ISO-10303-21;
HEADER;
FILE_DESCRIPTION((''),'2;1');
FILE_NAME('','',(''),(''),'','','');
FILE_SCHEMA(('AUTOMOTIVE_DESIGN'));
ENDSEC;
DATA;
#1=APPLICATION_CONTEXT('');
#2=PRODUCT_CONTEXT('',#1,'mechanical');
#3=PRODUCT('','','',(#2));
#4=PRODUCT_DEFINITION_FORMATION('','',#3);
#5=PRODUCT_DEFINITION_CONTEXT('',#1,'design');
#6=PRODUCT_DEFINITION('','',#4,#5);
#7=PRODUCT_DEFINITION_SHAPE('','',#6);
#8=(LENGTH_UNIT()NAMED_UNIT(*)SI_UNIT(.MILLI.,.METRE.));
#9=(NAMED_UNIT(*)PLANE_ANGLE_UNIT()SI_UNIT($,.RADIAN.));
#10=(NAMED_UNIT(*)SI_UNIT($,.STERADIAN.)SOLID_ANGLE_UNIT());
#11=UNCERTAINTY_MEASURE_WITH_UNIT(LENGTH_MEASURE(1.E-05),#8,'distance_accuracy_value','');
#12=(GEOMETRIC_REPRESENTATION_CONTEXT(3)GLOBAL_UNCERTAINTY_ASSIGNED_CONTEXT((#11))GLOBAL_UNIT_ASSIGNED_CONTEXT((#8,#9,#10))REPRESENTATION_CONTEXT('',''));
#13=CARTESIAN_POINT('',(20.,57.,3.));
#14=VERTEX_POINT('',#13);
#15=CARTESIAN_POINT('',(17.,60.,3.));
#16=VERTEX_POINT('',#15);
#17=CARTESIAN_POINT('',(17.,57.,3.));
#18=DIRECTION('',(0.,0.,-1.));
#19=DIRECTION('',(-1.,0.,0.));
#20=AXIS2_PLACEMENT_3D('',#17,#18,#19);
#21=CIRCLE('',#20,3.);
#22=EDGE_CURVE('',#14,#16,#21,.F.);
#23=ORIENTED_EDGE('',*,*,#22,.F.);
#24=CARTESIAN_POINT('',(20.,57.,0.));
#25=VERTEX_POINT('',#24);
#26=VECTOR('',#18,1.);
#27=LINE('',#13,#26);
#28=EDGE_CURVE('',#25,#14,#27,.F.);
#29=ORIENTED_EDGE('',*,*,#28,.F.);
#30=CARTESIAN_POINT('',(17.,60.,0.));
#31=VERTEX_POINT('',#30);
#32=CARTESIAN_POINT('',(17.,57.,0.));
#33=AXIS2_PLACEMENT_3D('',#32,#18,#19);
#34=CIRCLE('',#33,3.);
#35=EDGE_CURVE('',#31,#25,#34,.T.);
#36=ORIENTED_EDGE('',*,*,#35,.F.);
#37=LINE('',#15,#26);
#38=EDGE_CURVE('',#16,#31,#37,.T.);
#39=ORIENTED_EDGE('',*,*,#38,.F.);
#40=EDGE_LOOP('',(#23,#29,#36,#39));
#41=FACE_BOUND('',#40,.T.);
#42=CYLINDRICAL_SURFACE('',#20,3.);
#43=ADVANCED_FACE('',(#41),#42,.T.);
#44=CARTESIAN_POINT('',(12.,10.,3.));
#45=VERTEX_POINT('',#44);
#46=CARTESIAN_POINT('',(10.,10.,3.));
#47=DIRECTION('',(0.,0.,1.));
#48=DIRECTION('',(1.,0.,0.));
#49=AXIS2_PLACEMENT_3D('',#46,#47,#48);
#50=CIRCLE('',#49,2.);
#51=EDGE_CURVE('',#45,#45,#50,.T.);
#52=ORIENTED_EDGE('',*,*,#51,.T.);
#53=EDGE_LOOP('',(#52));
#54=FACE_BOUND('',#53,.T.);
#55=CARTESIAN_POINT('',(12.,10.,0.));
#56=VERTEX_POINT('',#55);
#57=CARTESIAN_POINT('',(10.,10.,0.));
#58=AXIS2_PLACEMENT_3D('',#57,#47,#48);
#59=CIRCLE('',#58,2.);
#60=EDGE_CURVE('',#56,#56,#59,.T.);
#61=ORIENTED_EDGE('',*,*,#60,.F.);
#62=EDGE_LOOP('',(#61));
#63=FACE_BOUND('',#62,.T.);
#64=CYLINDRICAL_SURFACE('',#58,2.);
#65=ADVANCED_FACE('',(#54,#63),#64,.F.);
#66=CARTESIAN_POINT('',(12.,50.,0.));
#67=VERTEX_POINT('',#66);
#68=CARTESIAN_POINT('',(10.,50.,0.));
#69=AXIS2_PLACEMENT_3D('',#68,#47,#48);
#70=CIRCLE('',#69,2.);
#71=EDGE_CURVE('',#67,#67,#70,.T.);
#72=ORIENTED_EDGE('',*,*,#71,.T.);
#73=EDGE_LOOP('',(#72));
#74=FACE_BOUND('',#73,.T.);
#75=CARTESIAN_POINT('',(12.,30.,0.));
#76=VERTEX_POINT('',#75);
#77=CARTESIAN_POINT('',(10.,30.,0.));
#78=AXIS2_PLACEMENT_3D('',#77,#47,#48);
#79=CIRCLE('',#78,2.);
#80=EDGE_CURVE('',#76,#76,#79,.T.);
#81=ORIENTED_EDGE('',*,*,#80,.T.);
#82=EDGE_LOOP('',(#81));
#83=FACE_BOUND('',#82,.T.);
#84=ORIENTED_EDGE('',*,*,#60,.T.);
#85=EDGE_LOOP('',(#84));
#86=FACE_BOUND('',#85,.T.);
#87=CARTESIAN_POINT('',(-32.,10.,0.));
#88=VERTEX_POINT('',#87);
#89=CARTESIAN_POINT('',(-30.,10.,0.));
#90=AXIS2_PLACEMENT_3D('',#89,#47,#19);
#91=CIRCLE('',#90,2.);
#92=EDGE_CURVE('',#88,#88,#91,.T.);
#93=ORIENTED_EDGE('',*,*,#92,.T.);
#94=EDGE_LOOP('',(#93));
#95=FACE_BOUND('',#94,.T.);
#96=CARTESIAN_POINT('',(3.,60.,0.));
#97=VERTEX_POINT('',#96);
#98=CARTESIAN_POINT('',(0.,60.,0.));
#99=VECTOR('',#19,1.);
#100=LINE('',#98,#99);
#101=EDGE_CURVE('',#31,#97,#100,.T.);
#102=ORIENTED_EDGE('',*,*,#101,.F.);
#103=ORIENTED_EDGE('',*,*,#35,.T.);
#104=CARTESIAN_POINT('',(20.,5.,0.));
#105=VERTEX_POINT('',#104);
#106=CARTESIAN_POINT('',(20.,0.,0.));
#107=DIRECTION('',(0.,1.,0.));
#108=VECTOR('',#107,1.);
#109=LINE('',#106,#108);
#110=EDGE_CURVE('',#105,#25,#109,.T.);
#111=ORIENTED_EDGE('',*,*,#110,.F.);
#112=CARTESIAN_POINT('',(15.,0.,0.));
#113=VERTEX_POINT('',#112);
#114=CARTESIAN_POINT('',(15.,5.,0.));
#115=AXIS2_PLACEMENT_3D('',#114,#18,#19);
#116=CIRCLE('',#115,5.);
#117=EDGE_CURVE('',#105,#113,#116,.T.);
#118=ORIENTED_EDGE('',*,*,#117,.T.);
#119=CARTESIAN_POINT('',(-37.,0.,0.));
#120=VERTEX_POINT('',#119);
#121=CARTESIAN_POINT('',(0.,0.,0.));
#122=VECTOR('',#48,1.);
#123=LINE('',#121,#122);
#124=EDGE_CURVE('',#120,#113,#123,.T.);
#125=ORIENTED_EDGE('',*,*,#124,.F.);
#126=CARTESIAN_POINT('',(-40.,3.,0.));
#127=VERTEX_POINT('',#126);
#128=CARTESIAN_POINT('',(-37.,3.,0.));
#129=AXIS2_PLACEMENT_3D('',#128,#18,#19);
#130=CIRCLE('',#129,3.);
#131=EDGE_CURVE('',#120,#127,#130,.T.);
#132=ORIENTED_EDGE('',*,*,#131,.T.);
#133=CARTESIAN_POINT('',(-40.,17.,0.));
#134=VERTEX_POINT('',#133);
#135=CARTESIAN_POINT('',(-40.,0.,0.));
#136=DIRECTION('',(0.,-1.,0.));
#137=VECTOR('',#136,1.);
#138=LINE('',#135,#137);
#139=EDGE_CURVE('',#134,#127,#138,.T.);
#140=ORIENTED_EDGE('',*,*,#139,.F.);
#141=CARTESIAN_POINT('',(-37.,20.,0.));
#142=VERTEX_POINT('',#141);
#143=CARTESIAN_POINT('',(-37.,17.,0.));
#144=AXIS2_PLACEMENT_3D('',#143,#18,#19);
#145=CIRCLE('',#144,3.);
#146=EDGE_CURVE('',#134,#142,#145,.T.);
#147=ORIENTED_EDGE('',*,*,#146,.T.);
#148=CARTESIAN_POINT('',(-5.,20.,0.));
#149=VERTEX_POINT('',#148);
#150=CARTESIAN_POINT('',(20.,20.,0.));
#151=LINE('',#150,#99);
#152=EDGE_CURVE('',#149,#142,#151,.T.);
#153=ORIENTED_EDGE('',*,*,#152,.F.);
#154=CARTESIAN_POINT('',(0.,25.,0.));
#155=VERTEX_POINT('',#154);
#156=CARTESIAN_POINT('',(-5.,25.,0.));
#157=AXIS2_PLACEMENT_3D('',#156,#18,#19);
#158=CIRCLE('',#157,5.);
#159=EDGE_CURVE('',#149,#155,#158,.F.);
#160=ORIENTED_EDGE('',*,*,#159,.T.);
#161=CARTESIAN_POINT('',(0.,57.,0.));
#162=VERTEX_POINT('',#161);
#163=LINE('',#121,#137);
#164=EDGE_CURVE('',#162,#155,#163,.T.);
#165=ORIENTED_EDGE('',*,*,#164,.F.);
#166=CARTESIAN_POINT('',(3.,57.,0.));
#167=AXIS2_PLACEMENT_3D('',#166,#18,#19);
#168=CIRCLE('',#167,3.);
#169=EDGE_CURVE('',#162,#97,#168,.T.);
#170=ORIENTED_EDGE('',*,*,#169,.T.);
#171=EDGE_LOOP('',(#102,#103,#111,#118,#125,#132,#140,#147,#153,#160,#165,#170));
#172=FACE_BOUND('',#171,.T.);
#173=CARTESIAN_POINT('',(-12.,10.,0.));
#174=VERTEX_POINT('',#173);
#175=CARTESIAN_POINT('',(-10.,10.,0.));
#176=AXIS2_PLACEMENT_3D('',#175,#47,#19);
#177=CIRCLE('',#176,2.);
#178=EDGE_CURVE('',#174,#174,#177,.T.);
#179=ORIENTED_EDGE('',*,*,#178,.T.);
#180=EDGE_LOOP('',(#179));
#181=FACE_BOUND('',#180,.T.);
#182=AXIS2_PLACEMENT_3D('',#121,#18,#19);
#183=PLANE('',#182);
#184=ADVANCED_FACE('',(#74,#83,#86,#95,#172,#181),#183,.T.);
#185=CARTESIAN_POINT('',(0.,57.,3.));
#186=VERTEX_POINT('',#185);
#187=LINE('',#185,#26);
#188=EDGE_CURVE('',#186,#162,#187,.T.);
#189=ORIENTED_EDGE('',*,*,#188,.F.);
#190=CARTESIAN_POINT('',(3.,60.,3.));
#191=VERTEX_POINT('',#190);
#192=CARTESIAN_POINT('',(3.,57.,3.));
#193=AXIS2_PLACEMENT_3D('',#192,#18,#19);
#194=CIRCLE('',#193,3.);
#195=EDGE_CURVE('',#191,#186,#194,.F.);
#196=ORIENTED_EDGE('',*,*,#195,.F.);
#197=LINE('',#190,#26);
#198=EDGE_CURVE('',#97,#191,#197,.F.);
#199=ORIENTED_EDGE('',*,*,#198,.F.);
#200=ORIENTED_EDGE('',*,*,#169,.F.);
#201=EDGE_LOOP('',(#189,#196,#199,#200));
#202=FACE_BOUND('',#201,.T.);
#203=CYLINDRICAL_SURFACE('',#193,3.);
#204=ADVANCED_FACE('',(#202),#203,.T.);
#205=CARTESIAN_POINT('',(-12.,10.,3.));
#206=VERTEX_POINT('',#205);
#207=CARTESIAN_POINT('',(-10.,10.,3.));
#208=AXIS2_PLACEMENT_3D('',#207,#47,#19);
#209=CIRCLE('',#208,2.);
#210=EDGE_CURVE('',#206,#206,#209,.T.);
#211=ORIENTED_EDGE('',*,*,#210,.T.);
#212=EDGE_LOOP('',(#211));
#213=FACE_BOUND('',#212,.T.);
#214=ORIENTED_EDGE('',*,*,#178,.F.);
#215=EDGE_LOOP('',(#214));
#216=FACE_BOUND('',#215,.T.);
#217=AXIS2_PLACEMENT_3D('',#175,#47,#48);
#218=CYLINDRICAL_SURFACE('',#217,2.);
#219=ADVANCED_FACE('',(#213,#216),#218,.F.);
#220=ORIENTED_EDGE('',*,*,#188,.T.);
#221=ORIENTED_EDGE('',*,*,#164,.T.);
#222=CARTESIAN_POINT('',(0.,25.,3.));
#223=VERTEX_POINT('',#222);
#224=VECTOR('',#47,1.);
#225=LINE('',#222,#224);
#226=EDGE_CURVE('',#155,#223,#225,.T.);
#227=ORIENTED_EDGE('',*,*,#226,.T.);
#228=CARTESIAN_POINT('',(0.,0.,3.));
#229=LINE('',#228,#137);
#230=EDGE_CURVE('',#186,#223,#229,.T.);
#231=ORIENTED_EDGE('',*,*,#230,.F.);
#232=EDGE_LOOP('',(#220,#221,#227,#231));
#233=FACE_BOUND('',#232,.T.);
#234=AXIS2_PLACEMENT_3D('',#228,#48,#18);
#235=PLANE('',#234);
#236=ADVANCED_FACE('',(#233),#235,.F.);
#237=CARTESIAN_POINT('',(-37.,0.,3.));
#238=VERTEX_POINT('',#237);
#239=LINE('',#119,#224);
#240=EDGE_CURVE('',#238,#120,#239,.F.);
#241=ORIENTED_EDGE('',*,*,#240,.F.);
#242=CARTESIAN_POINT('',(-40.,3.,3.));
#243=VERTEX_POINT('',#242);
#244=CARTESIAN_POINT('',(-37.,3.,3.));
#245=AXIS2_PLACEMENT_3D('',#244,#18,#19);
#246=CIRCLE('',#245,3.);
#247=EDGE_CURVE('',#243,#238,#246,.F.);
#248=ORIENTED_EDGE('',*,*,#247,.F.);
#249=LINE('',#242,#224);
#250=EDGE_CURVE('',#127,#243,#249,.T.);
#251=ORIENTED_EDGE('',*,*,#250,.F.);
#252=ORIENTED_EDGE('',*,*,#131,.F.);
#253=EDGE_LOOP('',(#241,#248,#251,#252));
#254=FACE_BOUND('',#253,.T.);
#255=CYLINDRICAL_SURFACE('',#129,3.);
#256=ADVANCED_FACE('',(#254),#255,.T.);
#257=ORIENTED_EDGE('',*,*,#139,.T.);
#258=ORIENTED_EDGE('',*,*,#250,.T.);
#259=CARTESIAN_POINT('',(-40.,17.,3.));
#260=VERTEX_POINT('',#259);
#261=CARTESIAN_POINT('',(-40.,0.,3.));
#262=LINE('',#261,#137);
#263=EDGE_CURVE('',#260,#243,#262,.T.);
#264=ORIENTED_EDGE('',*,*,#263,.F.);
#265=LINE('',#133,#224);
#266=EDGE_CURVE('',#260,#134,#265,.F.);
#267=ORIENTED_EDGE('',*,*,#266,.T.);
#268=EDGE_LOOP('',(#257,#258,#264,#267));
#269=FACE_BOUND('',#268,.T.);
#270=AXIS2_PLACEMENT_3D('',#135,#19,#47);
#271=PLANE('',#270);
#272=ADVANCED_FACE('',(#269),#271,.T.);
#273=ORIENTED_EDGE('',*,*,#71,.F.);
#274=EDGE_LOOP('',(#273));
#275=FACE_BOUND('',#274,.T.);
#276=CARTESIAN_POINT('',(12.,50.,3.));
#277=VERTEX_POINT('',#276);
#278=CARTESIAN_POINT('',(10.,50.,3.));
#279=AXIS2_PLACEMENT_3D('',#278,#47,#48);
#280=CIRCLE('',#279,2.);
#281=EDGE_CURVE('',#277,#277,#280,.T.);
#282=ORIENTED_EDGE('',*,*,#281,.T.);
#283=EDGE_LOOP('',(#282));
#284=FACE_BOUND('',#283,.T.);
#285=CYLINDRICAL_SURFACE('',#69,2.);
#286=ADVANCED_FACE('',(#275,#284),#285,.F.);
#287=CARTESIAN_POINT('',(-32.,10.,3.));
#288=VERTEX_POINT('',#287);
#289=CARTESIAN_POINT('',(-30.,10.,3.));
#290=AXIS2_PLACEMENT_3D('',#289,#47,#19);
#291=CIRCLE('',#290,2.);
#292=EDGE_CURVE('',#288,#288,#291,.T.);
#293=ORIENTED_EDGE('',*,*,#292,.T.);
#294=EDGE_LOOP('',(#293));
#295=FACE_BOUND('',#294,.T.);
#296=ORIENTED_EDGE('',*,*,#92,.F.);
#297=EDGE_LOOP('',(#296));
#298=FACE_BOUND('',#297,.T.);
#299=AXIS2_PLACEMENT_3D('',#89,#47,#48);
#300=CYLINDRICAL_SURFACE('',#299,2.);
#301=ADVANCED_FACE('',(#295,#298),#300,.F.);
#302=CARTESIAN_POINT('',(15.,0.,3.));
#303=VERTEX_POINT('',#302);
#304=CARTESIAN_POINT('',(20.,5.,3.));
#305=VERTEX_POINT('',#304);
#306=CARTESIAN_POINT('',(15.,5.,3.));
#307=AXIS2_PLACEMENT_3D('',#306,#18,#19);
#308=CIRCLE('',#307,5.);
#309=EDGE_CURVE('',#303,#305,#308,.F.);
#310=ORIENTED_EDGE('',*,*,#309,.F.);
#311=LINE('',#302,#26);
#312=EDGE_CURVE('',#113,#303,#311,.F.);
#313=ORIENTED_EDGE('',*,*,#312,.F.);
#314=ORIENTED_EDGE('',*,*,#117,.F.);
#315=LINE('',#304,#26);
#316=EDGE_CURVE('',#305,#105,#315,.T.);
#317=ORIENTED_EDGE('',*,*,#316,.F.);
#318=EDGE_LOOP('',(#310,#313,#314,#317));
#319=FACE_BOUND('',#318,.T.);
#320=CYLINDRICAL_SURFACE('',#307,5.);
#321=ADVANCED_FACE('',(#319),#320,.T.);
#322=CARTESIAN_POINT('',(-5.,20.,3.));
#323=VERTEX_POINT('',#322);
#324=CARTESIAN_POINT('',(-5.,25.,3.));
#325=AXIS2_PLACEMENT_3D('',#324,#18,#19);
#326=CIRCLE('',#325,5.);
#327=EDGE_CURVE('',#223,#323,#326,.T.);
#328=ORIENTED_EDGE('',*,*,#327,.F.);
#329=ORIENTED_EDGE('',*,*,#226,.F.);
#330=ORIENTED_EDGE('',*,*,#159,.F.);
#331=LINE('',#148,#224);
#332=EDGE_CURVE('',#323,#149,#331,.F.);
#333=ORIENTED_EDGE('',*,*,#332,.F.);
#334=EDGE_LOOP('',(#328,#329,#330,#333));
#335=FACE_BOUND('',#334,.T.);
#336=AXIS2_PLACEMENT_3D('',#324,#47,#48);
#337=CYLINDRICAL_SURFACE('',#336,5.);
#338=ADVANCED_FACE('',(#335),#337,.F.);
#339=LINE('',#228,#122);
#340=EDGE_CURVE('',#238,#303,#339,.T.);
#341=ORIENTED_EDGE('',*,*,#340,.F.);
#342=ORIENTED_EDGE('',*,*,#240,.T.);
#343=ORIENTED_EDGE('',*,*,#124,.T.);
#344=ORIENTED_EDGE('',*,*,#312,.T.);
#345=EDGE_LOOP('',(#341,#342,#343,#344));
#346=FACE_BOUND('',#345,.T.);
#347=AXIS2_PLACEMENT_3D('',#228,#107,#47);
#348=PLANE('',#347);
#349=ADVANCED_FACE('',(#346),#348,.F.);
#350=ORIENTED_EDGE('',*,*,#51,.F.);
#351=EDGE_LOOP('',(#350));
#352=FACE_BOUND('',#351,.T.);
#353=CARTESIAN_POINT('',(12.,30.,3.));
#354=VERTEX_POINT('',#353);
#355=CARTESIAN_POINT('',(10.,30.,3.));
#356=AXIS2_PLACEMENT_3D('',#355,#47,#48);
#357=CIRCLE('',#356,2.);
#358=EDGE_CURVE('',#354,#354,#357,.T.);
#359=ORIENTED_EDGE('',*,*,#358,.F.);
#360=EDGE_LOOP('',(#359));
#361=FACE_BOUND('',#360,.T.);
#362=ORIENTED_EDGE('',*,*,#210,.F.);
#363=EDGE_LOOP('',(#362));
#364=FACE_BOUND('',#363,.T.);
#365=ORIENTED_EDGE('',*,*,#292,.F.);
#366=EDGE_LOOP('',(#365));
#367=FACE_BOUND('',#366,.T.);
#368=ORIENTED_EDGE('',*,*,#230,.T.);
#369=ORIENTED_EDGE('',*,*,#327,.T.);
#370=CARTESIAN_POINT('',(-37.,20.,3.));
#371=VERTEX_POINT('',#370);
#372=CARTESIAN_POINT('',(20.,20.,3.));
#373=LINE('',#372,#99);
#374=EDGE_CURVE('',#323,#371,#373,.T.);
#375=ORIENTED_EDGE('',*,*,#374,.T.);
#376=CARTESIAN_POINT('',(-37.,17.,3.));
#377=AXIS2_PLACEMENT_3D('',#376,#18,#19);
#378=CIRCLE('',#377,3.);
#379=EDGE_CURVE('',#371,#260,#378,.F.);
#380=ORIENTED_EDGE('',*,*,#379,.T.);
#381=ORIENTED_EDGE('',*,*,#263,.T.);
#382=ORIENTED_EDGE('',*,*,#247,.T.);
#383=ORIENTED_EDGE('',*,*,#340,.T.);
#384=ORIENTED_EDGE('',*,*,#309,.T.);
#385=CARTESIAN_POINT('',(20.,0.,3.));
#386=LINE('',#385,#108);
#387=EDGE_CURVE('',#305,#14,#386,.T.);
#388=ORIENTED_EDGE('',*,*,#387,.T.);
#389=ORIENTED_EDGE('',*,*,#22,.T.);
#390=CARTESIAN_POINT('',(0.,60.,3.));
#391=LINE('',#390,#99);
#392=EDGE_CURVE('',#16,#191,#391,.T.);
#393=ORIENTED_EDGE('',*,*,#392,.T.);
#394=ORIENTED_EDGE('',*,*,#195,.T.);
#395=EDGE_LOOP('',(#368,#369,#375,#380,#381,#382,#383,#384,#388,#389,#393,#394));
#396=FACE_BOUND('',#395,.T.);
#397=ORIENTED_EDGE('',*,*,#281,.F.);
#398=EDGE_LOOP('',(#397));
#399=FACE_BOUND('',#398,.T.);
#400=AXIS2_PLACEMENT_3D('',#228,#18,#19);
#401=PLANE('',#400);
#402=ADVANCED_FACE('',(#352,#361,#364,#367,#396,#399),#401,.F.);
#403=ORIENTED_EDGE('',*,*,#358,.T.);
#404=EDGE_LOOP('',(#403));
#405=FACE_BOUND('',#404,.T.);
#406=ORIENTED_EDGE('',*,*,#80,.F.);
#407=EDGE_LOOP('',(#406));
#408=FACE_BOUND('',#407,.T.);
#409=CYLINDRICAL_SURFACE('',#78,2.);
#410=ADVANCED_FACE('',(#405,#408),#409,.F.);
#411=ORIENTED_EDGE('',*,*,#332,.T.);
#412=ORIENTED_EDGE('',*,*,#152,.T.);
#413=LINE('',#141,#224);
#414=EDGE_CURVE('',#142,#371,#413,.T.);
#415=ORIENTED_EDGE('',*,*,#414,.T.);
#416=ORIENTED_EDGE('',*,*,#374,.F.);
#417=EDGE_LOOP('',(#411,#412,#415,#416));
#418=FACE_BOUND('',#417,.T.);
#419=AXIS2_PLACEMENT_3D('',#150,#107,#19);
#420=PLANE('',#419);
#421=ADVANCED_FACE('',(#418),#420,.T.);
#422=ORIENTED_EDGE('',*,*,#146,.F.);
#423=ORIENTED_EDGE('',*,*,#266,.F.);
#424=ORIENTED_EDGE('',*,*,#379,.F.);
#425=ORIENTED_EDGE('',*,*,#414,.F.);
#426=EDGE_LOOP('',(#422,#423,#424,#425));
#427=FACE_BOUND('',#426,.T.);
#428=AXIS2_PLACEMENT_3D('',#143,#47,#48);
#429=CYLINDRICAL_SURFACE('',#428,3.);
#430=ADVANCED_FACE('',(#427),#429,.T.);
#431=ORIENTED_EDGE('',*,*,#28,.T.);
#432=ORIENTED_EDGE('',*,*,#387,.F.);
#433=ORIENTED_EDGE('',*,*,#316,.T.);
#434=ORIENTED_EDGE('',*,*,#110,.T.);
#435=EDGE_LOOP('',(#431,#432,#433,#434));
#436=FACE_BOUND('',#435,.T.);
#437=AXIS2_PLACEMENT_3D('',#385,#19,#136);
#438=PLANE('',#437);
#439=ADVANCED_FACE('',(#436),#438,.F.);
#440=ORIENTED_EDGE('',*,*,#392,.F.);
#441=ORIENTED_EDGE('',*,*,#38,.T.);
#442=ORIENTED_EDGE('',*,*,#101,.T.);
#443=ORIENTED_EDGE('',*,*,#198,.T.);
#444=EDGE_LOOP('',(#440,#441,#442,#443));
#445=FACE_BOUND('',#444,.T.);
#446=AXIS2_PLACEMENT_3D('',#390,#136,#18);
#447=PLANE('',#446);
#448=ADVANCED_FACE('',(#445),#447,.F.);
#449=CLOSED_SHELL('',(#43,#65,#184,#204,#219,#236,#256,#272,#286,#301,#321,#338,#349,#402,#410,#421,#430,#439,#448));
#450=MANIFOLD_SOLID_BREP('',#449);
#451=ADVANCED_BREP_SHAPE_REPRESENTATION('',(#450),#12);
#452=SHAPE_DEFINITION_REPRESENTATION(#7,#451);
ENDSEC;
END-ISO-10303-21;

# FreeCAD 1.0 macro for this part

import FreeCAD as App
import Part
import Sketcher

V = App.Vector


def edges_at(feature, points):
    """Names of the edges that pass closest to the given points."""
    edges = feature.Shape.Edges
    near = lambda p: min(range(len(edges)), key=lambda i: edges[i].distToShape(Part.Vertex(*p))[0])
    return sorted({f"Edge{near(p) + 1}" for p in points})

doc = App.newDocument("Part")
body = doc.addObject("PartDesign::Body", "Body")

# Sketch on XY plane
sketch1 = doc.addObject("Sketcher::SketchObject", "Sketch")
body.addObject(sketch1)
sketch1.AttachmentSupport = (doc.XY_Plane, [""])
sketch1.MapMode = "FlatFace"
sketch1.addGeometry(Part.LineSegment(V(0, 60, 0), V(0, 0, 0)), False)
sketch1.addGeometry(Part.LineSegment(V(0, 0, 0), V(20, 0, 0)), False)
sketch1.addGeometry(Part.LineSegment(V(20, 0, 0), V(20, 60, 0)), False)
sketch1.addGeometry(Part.LineSegment(V(20, 60, 0), V(0, 60, 0)), False)
sketch1.addConstraint(Sketcher.Constraint("Coincident", 0, 2, 1, 1))
sketch1.addConstraint(Sketcher.Constraint("Coincident", 1, 2, 2, 1))
sketch1.addConstraint(Sketcher.Constraint("Coincident", 2, 2, 3, 1))
sketch1.addConstraint(Sketcher.Constraint("Coincident", 3, 2, 0, 1))
sketch1.addConstraint(Sketcher.Constraint("Vertical", 0))
sketch1.addConstraint(Sketcher.Constraint("Horizontal", 1))
sketch1.addConstraint(Sketcher.Constraint("Vertical", 2))
sketch1.addConstraint(Sketcher.Constraint("Horizontal", 3))
sketch1.addConstraint(Sketcher.Constraint("Coincident", 0, 2, -1, 1))
sketch1.addConstraint(Sketcher.Constraint("DistanceX", 1, 1, 1, 2, 20.0))
sketch1.addConstraint(Sketcher.Constraint("DistanceY", 0, 2, 0, 1, 60.0))
pad1 = doc.addObject("PartDesign::Pad", "Pad")
body.addObject(pad1)
pad1.Profile = sketch1
pad1.Length = 3

# Sketch on XY plane
sketch2 = doc.addObject("Sketcher::SketchObject", "Sketch001")
body.addObject(sketch2)
sketch2.AttachmentSupport = (doc.XY_Plane, [""])
sketch2.MapMode = "FlatFace"
sketch2.AttachmentOffset = App.Placement(V(0, 0, 3), App.Rotation())
sketch2.addGeometry(Part.LineSegment(V(-40, 20, 0), V(-40, 0, 0)), False)
sketch2.addGeometry(Part.LineSegment(V(-40, 0, 0), V(20, 0, 0)), False)
sketch2.addGeometry(Part.LineSegment(V(20, 0, 0), V(20, 20, 0)), False)
sketch2.addGeometry(Part.LineSegment(V(20, 20, 0), V(-40, 20, 0)), False)
sketch2.addConstraint(Sketcher.Constraint("Coincident", 0, 2, 1, 1))
sketch2.addConstraint(Sketcher.Constraint("Coincident", 1, 2, 2, 1))
sketch2.addConstraint(Sketcher.Constraint("Coincident", 2, 2, 3, 1))
sketch2.addConstraint(Sketcher.Constraint("Coincident", 3, 2, 0, 1))
sketch2.addConstraint(Sketcher.Constraint("Vertical", 0))
sketch2.addConstraint(Sketcher.Constraint("Horizontal", 1))
sketch2.addConstraint(Sketcher.Constraint("Vertical", 2))
sketch2.addConstraint(Sketcher.Constraint("Horizontal", 3))
sketch2.addConstraint(Sketcher.Constraint("PointOnObject", 0, 2, -1))
sketch2.addConstraint(Sketcher.Constraint("DistanceX", 1, 1, 1, 2, 60.0))
sketch2.addConstraint(Sketcher.Constraint("DistanceY", 0, 2, 0, 1, 20.0))
sketch2.addConstraint(Sketcher.Constraint("DistanceX", 0, 2, -1, 1, 40.0))
pad2 = doc.addObject("PartDesign::Pad", "Pad001")
body.addObject(pad2)
pad2.Profile = sketch2
pad2.Length = 3
pad2.Reversed = True

# Sketch on XY plane
sketch3 = doc.addObject("Sketcher::SketchObject", "Sketch002")
body.addObject(sketch3)
sketch3.AttachmentSupport = (doc.XY_Plane, [""])
sketch3.MapMode = "FlatFace"
sketch3.AttachmentOffset = App.Placement(V(0, 0, 3), App.Rotation())
sketch3.addGeometry(Part.Circle(V(10, 10, 0), V(0, 0, 1), 2), False)
sketch3.addGeometry(Part.Circle(V(10, 30, 0), V(0, 0, 1), 2), False)
sketch3.addGeometry(Part.Circle(V(10, 50, 0), V(0, 0, 1), 2), False)
sketch3.addGeometry(Part.Circle(V(-10, 10, 0), V(0, 0, 1), 2), False)
sketch3.addGeometry(Part.Circle(V(-30, 10, 0), V(0, 0, 1), 2), False)
sketch3.addConstraint(Sketcher.Constraint("Equal", 0, 1))
sketch3.addConstraint(Sketcher.Constraint("Equal", 1, 2))
sketch3.addConstraint(Sketcher.Constraint("Equal", 2, 3))
sketch3.addConstraint(Sketcher.Constraint("Equal", 3, 4))
sketch3.addConstraint(Sketcher.Constraint("Symmetric", 0, 3, 3, 3, -2))
sketch3.addConstraint(Sketcher.Constraint("Horizontal", 3, 3, 4, 3))
sketch3.addConstraint(Sketcher.Constraint("Vertical", 0, 3, 1, 3))
sketch3.addConstraint(Sketcher.Constraint("Vertical", 1, 3, 2, 3))
sketch3.addConstraint(Sketcher.Constraint("Diameter", 0, 4.0))
sketch3.addConstraint(Sketcher.Constraint("DistanceX", -1, 1, 0, 3, 10.0))
sketch3.addConstraint(Sketcher.Constraint("DistanceY", -1, 1, 0, 3, 10.0))
sketch3.addConstraint(Sketcher.Constraint("DistanceY", -1, 1, 1, 3, 30.0))
sketch3.addConstraint(Sketcher.Constraint("DistanceY", -1, 1, 2, 3, 50.0))
sketch3.addConstraint(Sketcher.Constraint("DistanceX", 4, 3, -1, 1, 30.0))
pocket1 = doc.addObject("PartDesign::Pocket", "Pocket")
body.addObject(pocket1)
pocket1.Profile = sketch3
pocket1.Length = 3
doc.recompute()

fillet = doc.addObject("PartDesign::Fillet", "Fillet")
body.addObject(fillet)
fillet.Base = (pocket1, edges_at(pocket1, [(0, 20, 1.5), (20, 0, 1.5)]))
fillet.Radius = 5
doc.recompute()

fillet2 = doc.addObject("PartDesign::Fillet", "Fillet001")
body.addObject(fillet2)
fillet2.Base = (fillet, edges_at(fillet, [
    (-40, 20, 1.5),
    (-40, 0, 1.5),
    (0, 60, 1.5),
    (20, 60, 1.5),
]))
fillet2.Radius = 3

doc.recompute()
